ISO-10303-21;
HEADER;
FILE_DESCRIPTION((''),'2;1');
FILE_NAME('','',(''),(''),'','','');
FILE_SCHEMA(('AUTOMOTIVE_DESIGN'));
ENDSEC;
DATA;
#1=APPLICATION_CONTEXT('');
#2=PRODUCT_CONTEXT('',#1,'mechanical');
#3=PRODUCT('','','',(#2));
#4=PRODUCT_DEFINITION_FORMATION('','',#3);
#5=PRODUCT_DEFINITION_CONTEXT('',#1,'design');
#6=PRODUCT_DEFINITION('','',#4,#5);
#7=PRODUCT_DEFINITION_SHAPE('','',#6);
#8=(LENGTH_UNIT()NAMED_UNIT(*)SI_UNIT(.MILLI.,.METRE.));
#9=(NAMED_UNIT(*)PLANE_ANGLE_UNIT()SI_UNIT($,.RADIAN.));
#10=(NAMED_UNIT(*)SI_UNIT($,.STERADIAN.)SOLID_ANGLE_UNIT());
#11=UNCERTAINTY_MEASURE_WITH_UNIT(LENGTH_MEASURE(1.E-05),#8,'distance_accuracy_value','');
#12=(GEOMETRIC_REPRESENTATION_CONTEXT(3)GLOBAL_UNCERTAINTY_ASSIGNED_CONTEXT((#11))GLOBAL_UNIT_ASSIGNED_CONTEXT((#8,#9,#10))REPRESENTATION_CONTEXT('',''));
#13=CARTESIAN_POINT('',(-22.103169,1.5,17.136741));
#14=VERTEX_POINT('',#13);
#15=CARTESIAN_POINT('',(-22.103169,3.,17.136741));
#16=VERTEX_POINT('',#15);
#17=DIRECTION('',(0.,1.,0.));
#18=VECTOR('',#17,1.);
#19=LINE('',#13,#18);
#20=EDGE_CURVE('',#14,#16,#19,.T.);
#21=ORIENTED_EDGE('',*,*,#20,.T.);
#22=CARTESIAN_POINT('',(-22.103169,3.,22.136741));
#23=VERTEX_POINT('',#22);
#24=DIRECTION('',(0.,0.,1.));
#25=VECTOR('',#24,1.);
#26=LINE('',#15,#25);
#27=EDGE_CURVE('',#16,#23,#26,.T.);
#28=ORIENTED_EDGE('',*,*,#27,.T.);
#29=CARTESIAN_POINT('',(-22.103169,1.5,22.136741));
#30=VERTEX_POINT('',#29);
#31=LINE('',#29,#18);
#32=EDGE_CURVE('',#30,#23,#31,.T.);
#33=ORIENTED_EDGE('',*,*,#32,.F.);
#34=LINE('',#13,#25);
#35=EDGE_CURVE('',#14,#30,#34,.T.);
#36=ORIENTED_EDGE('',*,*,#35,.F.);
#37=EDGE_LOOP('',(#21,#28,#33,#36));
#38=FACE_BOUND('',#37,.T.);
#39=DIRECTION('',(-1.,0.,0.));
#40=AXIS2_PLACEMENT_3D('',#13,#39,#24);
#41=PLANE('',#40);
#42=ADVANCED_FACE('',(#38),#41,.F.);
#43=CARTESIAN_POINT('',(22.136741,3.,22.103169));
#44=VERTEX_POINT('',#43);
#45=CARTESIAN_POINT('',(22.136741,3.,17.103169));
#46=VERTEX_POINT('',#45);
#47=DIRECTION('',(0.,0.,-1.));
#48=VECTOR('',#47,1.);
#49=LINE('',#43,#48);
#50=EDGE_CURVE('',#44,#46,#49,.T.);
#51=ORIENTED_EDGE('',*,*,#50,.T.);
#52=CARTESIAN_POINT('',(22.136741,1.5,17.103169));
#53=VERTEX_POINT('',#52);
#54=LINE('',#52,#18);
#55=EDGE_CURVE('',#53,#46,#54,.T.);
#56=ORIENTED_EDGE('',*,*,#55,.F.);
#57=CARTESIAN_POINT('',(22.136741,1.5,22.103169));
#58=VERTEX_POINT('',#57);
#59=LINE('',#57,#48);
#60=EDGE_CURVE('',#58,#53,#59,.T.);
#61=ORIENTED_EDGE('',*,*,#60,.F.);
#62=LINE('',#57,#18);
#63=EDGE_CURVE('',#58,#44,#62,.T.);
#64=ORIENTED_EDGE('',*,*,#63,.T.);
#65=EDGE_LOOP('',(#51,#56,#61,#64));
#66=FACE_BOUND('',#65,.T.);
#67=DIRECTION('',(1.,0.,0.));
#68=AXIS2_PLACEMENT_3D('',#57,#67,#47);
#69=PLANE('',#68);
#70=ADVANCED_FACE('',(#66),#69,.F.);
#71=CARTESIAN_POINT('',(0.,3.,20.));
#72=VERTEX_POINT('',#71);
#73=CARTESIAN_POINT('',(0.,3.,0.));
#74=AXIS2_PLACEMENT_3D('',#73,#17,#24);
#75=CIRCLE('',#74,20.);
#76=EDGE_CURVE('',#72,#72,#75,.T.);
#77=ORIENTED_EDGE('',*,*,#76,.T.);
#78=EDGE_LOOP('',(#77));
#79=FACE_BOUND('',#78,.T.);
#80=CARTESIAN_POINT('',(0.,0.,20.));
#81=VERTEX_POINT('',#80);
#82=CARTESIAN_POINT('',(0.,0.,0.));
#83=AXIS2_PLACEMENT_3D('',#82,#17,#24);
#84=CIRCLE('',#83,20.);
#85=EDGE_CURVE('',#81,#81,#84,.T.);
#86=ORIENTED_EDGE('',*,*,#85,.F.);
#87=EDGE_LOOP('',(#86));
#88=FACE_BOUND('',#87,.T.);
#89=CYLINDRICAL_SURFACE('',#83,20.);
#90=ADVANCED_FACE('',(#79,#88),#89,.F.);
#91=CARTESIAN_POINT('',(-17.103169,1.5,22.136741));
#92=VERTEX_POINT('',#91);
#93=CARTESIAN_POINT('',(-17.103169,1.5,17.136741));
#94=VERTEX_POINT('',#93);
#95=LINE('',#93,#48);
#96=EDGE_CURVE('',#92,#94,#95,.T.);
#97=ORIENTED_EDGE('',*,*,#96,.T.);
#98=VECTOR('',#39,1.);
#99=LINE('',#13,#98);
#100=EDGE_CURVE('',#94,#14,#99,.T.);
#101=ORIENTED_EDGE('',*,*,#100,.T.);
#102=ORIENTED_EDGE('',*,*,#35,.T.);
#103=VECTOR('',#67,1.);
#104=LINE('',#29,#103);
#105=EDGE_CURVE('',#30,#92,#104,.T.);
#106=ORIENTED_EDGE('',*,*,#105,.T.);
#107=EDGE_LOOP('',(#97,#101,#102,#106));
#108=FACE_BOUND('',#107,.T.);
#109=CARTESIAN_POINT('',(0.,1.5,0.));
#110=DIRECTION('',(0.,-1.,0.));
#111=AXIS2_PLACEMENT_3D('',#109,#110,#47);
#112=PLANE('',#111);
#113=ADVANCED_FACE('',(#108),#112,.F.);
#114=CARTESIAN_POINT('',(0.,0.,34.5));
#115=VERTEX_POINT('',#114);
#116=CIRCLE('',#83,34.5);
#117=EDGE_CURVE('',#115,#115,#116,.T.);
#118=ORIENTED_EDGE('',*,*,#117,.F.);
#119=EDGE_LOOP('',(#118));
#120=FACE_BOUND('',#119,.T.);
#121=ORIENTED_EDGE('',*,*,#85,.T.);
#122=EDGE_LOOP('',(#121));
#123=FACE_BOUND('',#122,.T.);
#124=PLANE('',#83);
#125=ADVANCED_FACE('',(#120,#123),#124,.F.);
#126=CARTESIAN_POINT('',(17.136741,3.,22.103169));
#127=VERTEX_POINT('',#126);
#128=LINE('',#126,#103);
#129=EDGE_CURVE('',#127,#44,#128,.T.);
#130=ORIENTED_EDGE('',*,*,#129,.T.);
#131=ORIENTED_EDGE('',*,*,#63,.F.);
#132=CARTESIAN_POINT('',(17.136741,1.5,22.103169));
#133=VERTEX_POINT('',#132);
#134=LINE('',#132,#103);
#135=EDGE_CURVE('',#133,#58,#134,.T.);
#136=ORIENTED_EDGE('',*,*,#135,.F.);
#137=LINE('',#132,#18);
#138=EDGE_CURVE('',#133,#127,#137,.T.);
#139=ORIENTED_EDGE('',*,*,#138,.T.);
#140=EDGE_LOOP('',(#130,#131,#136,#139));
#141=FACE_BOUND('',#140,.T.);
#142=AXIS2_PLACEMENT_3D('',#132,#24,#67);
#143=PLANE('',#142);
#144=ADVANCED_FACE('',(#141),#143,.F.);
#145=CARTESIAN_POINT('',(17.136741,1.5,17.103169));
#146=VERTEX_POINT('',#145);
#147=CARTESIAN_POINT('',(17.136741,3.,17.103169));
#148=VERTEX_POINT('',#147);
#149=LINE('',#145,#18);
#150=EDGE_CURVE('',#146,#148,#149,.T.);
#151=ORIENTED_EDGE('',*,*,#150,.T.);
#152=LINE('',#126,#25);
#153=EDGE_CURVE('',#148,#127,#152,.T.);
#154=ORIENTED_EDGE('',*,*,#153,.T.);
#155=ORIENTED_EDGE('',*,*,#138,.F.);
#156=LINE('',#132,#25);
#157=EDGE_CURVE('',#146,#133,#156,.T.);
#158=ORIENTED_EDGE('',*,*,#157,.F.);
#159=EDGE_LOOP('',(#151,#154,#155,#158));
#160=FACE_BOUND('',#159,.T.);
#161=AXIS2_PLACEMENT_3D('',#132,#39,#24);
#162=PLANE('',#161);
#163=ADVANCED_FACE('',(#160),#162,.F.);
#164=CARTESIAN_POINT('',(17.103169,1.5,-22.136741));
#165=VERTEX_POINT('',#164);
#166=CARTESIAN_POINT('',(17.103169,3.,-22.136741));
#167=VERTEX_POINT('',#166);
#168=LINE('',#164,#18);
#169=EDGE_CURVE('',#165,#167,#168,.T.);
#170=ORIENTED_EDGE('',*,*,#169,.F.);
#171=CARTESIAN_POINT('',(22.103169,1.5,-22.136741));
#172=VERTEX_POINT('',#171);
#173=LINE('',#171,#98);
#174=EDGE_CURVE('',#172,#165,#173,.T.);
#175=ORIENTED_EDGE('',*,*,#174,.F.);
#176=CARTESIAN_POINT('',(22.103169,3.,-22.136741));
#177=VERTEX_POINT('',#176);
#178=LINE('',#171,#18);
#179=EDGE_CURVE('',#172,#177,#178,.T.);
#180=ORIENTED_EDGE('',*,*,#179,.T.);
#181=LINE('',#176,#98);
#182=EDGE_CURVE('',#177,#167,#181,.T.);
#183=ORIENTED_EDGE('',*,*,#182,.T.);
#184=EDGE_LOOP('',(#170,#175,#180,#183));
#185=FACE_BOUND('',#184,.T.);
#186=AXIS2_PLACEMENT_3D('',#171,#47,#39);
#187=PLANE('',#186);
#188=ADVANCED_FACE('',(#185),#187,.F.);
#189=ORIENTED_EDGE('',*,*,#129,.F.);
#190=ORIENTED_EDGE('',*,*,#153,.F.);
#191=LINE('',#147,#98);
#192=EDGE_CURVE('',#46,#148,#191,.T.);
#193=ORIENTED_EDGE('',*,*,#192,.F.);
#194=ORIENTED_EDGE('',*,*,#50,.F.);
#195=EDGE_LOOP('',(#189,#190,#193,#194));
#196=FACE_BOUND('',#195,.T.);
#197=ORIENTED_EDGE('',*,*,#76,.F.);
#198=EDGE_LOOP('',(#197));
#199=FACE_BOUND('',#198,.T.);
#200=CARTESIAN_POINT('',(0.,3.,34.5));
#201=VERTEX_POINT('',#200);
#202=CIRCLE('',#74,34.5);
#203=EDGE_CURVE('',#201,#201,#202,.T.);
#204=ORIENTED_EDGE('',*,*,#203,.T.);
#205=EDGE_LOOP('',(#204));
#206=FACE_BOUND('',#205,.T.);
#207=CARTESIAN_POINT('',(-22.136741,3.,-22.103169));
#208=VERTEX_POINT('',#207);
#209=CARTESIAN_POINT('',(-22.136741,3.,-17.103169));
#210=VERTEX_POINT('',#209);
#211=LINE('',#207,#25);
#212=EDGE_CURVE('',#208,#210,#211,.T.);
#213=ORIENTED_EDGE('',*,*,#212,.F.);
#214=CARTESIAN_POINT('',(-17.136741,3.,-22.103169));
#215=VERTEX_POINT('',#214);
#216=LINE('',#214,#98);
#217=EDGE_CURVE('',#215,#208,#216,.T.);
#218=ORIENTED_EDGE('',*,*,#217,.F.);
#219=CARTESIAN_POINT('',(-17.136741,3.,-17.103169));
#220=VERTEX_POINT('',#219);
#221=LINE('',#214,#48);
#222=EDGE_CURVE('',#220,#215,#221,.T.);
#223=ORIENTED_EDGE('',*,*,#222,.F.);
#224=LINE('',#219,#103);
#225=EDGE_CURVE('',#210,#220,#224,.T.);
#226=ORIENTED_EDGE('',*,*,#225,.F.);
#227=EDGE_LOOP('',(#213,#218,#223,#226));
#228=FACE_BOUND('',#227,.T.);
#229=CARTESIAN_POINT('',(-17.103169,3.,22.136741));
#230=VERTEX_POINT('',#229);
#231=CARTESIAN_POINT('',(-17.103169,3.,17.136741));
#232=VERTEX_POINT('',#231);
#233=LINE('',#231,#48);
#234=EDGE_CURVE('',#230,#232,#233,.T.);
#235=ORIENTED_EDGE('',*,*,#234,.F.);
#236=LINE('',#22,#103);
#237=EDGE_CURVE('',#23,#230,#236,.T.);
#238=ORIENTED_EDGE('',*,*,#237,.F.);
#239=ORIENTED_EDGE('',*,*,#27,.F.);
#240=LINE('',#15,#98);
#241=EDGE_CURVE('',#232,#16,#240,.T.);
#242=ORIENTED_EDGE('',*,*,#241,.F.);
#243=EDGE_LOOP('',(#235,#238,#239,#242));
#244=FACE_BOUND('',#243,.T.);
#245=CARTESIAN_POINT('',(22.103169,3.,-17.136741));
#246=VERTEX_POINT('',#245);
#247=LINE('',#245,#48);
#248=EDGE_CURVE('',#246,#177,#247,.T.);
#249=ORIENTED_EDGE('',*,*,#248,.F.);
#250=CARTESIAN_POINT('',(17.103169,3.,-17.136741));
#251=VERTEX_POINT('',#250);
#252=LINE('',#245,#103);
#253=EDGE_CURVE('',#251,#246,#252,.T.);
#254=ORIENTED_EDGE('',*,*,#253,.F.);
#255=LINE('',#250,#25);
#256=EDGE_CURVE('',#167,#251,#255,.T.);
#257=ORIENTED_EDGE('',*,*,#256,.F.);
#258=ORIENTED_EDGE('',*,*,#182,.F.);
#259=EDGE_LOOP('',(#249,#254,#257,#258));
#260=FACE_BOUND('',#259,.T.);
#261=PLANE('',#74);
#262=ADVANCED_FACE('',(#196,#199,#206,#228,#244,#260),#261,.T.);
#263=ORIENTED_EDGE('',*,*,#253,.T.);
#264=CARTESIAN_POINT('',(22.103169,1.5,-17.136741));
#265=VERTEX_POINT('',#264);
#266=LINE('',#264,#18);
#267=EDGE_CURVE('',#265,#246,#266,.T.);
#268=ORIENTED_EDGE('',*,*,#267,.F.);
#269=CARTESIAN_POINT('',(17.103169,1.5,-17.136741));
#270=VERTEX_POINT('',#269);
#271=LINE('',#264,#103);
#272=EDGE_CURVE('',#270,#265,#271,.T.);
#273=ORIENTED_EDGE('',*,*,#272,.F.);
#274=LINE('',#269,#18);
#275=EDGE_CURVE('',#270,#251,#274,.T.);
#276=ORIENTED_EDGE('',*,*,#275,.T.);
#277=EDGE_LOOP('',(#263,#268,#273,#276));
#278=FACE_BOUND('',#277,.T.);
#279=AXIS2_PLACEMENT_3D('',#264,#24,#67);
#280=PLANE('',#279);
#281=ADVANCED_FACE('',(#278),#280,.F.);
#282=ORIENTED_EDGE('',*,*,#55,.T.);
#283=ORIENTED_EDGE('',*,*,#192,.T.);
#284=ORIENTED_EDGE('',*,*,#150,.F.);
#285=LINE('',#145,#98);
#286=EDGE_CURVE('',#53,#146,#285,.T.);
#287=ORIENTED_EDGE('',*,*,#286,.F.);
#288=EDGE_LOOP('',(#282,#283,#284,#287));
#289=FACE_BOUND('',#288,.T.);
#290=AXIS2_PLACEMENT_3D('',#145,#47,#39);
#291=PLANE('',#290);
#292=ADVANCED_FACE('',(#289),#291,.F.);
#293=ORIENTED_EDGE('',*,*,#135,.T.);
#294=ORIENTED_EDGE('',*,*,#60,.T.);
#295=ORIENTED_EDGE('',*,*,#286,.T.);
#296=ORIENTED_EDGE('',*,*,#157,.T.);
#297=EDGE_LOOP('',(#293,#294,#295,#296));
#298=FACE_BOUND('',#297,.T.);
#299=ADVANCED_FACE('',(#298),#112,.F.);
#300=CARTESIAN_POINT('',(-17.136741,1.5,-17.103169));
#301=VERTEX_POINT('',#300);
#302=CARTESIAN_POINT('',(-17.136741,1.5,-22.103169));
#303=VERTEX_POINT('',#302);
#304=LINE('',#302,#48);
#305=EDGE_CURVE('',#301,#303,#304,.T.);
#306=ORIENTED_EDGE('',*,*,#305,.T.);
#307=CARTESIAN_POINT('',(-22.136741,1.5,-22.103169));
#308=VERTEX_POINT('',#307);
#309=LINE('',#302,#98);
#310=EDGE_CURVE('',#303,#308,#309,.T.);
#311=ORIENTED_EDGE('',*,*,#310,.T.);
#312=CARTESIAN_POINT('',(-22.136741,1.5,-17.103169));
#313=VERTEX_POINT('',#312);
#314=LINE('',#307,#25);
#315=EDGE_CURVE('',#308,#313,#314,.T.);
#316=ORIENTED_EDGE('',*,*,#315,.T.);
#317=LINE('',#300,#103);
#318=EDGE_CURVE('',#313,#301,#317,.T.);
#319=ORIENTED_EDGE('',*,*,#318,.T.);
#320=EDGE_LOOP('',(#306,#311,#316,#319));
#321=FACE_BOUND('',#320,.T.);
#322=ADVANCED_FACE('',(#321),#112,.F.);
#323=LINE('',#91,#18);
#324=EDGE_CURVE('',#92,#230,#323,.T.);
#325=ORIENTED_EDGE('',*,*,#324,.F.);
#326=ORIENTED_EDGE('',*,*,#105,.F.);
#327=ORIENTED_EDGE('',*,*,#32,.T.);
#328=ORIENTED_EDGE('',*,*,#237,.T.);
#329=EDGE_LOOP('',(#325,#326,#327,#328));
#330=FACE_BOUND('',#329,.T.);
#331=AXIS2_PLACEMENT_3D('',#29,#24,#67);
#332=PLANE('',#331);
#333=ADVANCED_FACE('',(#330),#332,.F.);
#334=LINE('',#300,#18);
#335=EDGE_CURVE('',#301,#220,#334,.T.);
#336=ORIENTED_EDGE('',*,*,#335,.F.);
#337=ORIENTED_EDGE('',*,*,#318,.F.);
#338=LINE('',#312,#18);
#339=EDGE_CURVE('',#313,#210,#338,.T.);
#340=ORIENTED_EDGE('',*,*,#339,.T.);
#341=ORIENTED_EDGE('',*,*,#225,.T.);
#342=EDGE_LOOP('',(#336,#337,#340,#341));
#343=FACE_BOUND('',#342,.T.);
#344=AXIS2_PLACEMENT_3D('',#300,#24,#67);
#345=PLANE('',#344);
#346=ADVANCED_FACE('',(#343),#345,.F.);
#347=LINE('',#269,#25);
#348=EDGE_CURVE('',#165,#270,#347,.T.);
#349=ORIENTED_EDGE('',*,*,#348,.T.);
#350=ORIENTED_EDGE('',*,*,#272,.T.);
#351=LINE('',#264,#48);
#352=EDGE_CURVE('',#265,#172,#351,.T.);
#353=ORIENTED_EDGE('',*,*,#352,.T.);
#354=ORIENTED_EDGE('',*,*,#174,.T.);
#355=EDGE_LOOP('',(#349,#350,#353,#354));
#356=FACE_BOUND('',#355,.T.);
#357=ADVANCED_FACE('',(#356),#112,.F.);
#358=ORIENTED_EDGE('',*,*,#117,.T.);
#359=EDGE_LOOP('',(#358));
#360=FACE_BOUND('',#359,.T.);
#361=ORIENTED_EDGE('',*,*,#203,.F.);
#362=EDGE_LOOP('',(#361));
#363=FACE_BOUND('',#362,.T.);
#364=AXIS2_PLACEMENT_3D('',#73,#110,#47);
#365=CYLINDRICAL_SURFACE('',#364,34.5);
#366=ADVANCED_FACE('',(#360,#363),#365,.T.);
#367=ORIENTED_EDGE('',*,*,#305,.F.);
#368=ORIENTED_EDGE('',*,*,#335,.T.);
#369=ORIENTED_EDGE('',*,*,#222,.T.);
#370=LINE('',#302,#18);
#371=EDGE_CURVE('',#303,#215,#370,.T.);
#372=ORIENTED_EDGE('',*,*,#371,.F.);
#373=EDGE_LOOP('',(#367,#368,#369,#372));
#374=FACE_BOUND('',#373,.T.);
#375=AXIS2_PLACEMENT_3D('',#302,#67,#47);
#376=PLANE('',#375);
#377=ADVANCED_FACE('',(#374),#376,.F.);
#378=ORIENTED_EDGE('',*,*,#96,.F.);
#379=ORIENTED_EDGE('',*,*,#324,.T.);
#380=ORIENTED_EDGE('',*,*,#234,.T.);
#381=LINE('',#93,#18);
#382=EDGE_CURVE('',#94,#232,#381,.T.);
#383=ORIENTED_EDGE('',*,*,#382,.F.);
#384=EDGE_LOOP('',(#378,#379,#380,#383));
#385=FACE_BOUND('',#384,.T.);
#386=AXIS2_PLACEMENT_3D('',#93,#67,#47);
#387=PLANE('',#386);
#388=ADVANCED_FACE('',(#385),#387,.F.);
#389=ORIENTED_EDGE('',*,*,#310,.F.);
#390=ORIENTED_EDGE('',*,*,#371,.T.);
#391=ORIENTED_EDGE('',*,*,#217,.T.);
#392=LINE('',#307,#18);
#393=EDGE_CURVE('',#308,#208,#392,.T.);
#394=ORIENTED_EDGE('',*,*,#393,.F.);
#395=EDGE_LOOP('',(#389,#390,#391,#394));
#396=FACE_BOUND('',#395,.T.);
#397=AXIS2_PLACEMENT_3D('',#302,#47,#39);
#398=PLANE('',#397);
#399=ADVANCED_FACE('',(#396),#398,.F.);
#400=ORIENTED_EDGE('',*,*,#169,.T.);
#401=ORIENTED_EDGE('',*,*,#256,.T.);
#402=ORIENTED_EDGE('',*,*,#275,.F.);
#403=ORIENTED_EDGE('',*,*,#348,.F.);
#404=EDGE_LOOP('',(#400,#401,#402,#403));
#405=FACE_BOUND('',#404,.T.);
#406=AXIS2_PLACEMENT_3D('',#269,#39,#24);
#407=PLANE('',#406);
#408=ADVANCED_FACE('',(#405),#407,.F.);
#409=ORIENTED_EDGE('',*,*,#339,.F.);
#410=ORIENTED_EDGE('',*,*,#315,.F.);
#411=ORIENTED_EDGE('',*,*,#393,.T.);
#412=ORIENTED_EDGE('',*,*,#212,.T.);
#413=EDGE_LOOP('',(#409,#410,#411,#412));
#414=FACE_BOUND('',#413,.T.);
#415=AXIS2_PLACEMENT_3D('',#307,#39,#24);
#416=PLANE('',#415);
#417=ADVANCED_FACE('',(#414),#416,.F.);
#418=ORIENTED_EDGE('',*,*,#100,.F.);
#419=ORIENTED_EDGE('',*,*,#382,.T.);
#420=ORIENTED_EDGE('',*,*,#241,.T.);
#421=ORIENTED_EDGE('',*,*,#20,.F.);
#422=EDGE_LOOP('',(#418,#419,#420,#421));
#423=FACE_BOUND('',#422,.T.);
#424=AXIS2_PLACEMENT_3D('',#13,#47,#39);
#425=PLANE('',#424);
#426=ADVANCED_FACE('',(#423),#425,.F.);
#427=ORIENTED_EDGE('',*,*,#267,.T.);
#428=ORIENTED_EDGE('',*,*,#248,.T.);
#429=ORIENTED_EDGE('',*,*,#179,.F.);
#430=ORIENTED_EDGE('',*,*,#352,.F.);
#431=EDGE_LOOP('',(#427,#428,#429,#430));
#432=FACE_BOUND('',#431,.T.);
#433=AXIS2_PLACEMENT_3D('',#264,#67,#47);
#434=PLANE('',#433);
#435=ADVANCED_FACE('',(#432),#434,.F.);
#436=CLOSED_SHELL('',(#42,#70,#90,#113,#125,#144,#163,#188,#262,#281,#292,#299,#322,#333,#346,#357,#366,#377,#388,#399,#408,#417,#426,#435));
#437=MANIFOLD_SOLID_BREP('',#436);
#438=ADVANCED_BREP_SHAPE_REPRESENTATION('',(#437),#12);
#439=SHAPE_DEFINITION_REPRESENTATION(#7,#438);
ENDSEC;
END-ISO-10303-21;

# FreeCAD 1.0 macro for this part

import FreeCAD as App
import Part
import Sketcher
Q = App.Units.Quantity


def add_polygon(sketch, points):
    """Adds a closed chain of lines whose ends are joined by coincident constraints."""
    first, n = sketch.GeometryCount, len(points)
    for a, b in zip(points, points[1:] + points[:1]):
        sketch.addGeometry(Part.LineSegment(App.Vector(*a, 0), App.Vector(*b, 0)), False)
    for i in range(n):
        sketch.addConstraint(Sketcher.Constraint("Coincident", first + i, 2, first + (i + 1) % n, 1))

doc = App.newDocument("Part")
params = doc.addObject("Spreadsheet::Sheet", "Params")
for row, (alias, value) in enumerate([
    ("sketch1_diameter", "69 mm"),
    ("pad1_length", "3 mm"),
    ("sketch2_diameter", "40 mm"),
    ("sketch3_width", "5 mm"),
    ("pocket2_length", "1.5 mm"),
], start=1):
    params.set(f"A{row}", alias)
    params.set(f"B{row}", "=" + value)
    params.setAlias(f"B{row}", alias)

body = doc.addObject("PartDesign::Body", "Body")

# Sketch on XZ plane
sketch1 = body.newObject("Sketcher::SketchObject", "Sketch")
sketch1.AttachmentSupport = (doc.getObject("XZ_Plane"), [""])
sketch1.MapMode = "FlatFace"
sketch1.addGeometry(Part.Circle(App.Vector(0, 0, 0), App.Vector(0, 0, 1), 34.5), False)
sketch1.addConstraint([
    Sketcher.Constraint("Coincident", 0, 3, -1, 1),
    Sketcher.Constraint("Diameter", 0, Q("69 mm")),
])
sketch1.setExpression("Constraints[1]", "Params.sketch1_diameter")
pad1 = body.newObject("PartDesign::Pad", "Pad")
pad1.Profile = sketch1
pad1.setExpression("Length", "Params.pad1_length")
pad1.Reversed = True

# Sketch on XZ plane
sketch2 = body.newObject("Sketcher::SketchObject", "Sketch001")
sketch2.AttachmentSupport = (doc.getObject("XZ_Plane"), [""])
sketch2.MapMode = "FlatFace"
sketch2.AttachmentOffset = App.Placement(App.Vector(0, 0, -3), App.Rotation())
sketch2.addGeometry(Part.Circle(App.Vector(0, 0, 0), App.Vector(0, 0, 1), 20), False)
sketch2.addConstraint([
    Sketcher.Constraint("Coincident", 0, 3, -1, 1),
    Sketcher.Constraint("Diameter", 0, Q("40 mm")),
])
sketch2.setExpression("Constraints[1]", "Params.sketch2_diameter")
pocket1 = body.newObject("PartDesign::Pocket", "Pocket")
pocket1.Profile = sketch2
pocket1.Type = "ThroughAll"
pocket1.Reversed = True

# Sketch on XZ plane
sketch3 = body.newObject("Sketcher::SketchObject", "Sketch002")
sketch3.AttachmentSupport = (doc.getObject("XZ_Plane"), [""])
sketch3.MapMode = "FlatFace"
sketch3.AttachmentOffset = App.Placement(App.Vector(0, 0, -3), App.Rotation())
add_polygon(sketch3, [(17.103169, -22.136741), (17.103169, -17.136741), (22.103169, -17.136741), (22.103169, -22.136741)])  # lines 0-3
add_polygon(sketch3, [(-22.136741, -22.103169), (-22.136741, -17.103169), (-17.136741, -17.103169), (-17.136741, -22.103169)])  # lines 4-7
add_polygon(sketch3, [(17.136741, 17.103169), (17.136741, 22.103169), (22.136741, 22.103169), (22.136741, 17.103169)])  # lines 8-11
add_polygon(sketch3, [(-22.103169, 17.136741), (-22.103169, 22.136741), (-17.103169, 22.136741), (-17.103169, 17.136741)])  # lines 12-15
sketch3.addConstraint([
    Sketcher.Constraint("Vertical", 0),
    Sketcher.Constraint("Horizontal", 1),
    Sketcher.Constraint("Vertical", 2),
    Sketcher.Constraint("Horizontal", 3),
    Sketcher.Constraint("Vertical", 4),
    Sketcher.Constraint("Horizontal", 5),
    Sketcher.Constraint("Vertical", 6),
    Sketcher.Constraint("Horizontal", 7),
    Sketcher.Constraint("Vertical", 8),
    Sketcher.Constraint("Horizontal", 9),
    Sketcher.Constraint("Vertical", 10),
    Sketcher.Constraint("Horizontal", 11),
    Sketcher.Constraint("Vertical", 12),
    Sketcher.Constraint("Horizontal", 13),
    Sketcher.Constraint("Vertical", 14),
    Sketcher.Constraint("Horizontal", 15),
    Sketcher.Constraint("Symmetric", 6, 2, 8, 2, -1, 1),
    Sketcher.Constraint("Symmetric", 4, 2, 10, 2, -1, 1),
    Sketcher.Constraint("Symmetric", 2, 2, 12, 2, -1, 1),
    Sketcher.Constraint("Symmetric", 0, 2, 14, 2, -1, 1),
    Sketcher.Constraint("Equal", 3, 5),
    Sketcher.Constraint("Equal", 15, 0),
    Sketcher.Constraint("Equal", 2, 4),
    Sketcher.Constraint("DistanceX", 1, 1, 1, 2, Q("5 mm")),
    Sketcher.Constraint("DistanceX", -1, 1, 0, 2, Q("17.103169 mm")),
    Sketcher.Constraint("DistanceY", 0, 2, -1, 1, Q("17.136741 mm")),
    Sketcher.Constraint("DistanceX", 4, 2, -1, 1, Q("22.136741 mm")),
    Sketcher.Constraint("DistanceY", 4, 2, -1, 1, Q("17.103169 mm")),
])
sketch3.setExpression("Constraints[39]", "Params.sketch3_width")
pocket2 = body.newObject("PartDesign::Pocket", "Pocket001")
pocket2.Profile = sketch3
pocket2.setExpression("Length", "Params.pocket2_length")
pocket2.Reversed = True

doc.recompute()
